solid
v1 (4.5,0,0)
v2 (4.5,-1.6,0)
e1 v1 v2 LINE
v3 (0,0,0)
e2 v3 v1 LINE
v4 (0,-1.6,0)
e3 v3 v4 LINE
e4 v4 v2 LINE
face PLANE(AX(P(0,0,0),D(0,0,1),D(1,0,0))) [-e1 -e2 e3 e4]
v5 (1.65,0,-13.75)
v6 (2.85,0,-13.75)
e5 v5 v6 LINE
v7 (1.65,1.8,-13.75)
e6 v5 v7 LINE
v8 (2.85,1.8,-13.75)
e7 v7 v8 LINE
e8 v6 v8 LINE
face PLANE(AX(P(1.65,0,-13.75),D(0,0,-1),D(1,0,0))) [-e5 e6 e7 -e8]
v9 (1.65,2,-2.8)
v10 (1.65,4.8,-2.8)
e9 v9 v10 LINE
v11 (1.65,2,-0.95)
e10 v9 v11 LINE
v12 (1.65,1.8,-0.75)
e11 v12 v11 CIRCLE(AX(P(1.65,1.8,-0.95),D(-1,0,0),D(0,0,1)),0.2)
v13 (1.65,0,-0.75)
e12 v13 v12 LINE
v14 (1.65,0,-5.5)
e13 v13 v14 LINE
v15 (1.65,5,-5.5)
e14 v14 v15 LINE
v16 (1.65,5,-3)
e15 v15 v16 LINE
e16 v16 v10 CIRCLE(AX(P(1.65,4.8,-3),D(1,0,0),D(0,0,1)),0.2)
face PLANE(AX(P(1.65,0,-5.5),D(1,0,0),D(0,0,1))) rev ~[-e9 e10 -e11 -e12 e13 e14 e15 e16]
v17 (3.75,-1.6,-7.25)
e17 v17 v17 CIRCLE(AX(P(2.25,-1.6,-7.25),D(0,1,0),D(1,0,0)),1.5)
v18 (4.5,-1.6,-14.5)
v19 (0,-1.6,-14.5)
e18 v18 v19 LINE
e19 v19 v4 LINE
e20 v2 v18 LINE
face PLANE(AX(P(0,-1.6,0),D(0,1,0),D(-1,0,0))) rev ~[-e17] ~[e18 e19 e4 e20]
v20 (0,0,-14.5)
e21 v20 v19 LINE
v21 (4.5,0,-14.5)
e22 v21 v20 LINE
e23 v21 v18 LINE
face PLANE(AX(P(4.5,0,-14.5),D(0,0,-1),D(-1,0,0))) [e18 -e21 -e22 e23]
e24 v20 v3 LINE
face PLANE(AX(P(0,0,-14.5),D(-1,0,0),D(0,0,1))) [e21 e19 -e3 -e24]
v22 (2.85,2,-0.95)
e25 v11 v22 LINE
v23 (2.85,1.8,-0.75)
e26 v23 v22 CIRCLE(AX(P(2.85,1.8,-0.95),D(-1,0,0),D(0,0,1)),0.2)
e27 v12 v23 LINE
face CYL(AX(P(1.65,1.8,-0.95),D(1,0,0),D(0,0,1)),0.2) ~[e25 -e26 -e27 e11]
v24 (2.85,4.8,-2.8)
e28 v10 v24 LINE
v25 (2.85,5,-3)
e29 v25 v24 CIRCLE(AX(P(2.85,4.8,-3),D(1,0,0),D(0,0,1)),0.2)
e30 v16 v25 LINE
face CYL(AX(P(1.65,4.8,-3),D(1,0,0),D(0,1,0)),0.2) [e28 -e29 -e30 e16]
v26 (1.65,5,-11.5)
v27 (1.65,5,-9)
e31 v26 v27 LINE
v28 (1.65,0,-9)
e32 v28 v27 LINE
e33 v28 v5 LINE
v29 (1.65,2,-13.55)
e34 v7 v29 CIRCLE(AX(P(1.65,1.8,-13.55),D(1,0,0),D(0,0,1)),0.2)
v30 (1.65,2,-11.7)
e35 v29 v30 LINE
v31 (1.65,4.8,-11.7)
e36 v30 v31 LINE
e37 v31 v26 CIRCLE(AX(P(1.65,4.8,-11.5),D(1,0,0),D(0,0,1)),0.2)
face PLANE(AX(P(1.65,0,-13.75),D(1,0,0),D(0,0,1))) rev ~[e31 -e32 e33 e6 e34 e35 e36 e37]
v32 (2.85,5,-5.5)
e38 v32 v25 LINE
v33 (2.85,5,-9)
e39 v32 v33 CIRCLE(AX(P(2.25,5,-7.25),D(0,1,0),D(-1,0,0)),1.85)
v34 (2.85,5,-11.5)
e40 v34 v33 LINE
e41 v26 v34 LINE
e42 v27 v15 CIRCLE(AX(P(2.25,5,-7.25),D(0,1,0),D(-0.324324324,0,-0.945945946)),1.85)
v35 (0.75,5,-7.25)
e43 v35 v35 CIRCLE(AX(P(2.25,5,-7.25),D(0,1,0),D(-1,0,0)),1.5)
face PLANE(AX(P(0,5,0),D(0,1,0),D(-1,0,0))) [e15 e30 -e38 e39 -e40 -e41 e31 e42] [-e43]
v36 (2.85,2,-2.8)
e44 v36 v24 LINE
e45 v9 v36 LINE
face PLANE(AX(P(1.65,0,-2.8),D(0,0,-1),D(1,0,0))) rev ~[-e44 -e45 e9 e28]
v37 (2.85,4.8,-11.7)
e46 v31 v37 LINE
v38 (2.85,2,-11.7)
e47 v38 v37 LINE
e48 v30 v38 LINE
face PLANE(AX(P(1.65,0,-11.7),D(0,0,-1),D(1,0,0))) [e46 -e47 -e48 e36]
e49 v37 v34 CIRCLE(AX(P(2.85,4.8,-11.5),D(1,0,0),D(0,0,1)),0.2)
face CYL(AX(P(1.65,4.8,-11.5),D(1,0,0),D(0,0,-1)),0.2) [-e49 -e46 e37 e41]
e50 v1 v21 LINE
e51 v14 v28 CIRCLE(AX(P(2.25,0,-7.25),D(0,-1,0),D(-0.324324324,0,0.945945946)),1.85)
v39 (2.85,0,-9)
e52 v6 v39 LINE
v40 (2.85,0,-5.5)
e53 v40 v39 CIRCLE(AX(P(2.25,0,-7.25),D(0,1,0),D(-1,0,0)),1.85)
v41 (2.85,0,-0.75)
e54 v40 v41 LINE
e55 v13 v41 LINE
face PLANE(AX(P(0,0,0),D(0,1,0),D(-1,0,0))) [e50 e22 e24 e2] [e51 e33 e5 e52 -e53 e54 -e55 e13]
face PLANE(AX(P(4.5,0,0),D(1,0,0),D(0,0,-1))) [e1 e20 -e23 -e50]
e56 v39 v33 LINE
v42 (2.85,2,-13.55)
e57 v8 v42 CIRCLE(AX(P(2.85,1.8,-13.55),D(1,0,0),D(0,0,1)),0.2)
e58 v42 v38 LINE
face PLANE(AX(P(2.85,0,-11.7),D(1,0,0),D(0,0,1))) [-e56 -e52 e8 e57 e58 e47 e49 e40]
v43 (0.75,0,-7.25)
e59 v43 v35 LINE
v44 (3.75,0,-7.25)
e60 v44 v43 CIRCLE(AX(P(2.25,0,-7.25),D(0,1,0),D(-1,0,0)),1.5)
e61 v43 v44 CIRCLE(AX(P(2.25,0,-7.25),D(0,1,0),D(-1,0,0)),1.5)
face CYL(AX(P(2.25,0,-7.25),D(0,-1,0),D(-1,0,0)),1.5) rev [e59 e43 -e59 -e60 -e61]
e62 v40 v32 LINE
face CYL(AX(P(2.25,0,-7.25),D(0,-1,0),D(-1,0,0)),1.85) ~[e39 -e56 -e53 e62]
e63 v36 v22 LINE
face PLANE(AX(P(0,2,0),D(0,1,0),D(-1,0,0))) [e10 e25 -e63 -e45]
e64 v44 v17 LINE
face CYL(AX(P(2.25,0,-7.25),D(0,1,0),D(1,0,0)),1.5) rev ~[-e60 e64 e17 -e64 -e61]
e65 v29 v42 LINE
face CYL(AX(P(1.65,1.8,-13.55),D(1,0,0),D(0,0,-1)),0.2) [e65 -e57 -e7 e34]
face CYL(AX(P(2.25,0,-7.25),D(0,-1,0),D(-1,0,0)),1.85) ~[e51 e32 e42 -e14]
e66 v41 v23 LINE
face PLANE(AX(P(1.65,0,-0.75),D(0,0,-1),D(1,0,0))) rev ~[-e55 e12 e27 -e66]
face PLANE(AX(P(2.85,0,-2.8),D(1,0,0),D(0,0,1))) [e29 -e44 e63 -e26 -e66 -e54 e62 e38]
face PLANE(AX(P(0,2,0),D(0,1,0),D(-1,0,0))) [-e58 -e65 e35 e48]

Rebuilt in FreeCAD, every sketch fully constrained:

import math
import FreeCAD as App
import Part
import Sketcher
Q = App.Units.Quantity


def edges_at(feature, points):
    """Names of the edges that pass closest to the given points."""
    edges = feature.Shape.Edges
    near = lambda p: min(range(len(edges)), key=lambda i: edges[i].distToShape(Part.Vertex(*p))[0])
    return sorted({f"Edge{near(p) + 1}" for p in points})


def add_polygon(sketch, points):
    """Adds a closed chain of lines whose ends are joined by coincident constraints."""
    first, n = sketch.GeometryCount, len(points)
    for a, b in zip(points, points[1:] + points[:1]):
        sketch.addGeometry(Part.LineSegment(App.Vector(*a, 0), App.Vector(*b, 0)), False)
    for i in range(n):
        sketch.addConstraint(Sketcher.Constraint("Coincident", first + i, 2, first + (i + 1) % n, 1))

doc = App.newDocument("Part")
body = doc.addObject("PartDesign::Body", "Body")

# Sketch on XZ plane
sketch1 = doc.addObject("Sketcher::SketchObject", "Sketch")
body.addObject(sketch1)
sketch1.AttachmentSupport = (doc.XZ_Plane, [""])
sketch1.MapMode = "FlatFace"
add_polygon(sketch1, [(0, -14.5), (0, 0), (4.5, 0), (4.5, -14.5)])  # lines 0-3
sketch1.addConstraint([
    Sketcher.Constraint("Vertical", 0),
    Sketcher.Constraint("Horizontal", 1),
    Sketcher.Constraint("Vertical", 2),
    Sketcher.Constraint("Horizontal", 3),
    Sketcher.Constraint("Coincident", 0, 2, -1, 1),
    Sketcher.Constraint("DistanceX", 1, 1, 1, 2, Q("4.5 mm")),
    Sketcher.Constraint("DistanceY", 0, 1, 0, 2, Q("14.5 mm")),
])
pad1 = doc.addObject("PartDesign::Pad", "Pad")
body.addObject(pad1)
pad1.Profile = sketch1
pad1.Length = 1.6

# Sketch on XZ plane
sketch2 = doc.addObject("Sketcher::SketchObject", "Sketch001")
body.addObject(sketch2)
sketch2.AttachmentSupport = (doc.XZ_Plane, [""])
sketch2.MapMode = "FlatFace"
add_polygon(sketch2, [(2.9, -13.8), (1.6, -13.8), (1.6, -11.7), (2.9, -11.7)])  # lines 0-3
add_polygon(sketch2, [(2.9, -0.8), (2.9, -2.8), (1.6, -2.8), (1.6, -0.8)])  # lines 4-7
sketch2.addConstraint([
    Sketcher.Constraint("Horizontal", 0),
    Sketcher.Constraint("Vertical", 1),
    Sketcher.Constraint("Horizontal", 2),
    Sketcher.Constraint("Vertical", 3),
    Sketcher.Constraint("Vertical", 4),
    Sketcher.Constraint("Horizontal", 5),
    Sketcher.Constraint("Vertical", 6),
    Sketcher.Constraint("Horizontal", 7),
    Sketcher.Constraint("Vertical", 3, 2, 4, 2),
    Sketcher.Constraint("Vertical", 1, 2, 5, 2),
    Sketcher.Constraint("Equal", 3, 4),
    Sketcher.Constraint("DistanceX", 0, 2, 0, 1, Q("1.2 mm")),
    Sketcher.Constraint("DistanceY", 0, 2, 6, 2, Q("13 mm")),
    Sketcher.Constraint("DistanceY", 1, 1, 1, 2, Q("2.05 mm")),
    Sketcher.Constraint("DistanceY", 1, 2, -1, 1, Q("11.7 mm")),
    Sketcher.Constraint("DistanceX", -1, 1, 0, 2, Q("1.65 mm")),
])
pad2 = doc.addObject("PartDesign::Pad", "Pad001")
body.addObject(pad2)
pad2.Profile = sketch2
pad2.Length = 2
pad2.Reversed = True

# Sketch on XZ plane
sketch3 = doc.addObject("Sketcher::SketchObject", "Sketch002")
body.addObject(sketch3)
sketch3.AttachmentSupport = (doc.XZ_Plane, [""])
sketch3.MapMode = "FlatFace"
sketch3.addGeometry([
    Part.LineSegment(App.Vector(2.9, -11.7, 0), App.Vector(1.6, -11.7, 0)),  # 0
    Part.LineSegment(App.Vector(1.6, -11.7, 0), App.Vector(1.6, -9, 0)),  # 1
    Part.ArcOfCircle(Part.Circle(App.Vector(2.2, -7.2, 0), App.Vector(0, 0, 1), 1.9), math.radians(109), math.radians(251)),  # 2
    Part.LineSegment(App.Vector(1.6, -5.5, 0), App.Vector(1.6, -2.8, 0)),  # 3
    Part.LineSegment(App.Vector(1.6, -2.8, 0), App.Vector(2.9, -2.8, 0)),  # 4
    Part.LineSegment(App.Vector(2.9, -2.8, 0), App.Vector(2.9, -5.5, 0)),  # 5
    Part.ArcOfCircle(Part.Circle(App.Vector(2.2, -7.2, 0), App.Vector(0, 0, 1), 1.9), math.radians(-71), math.radians(71)),  # 6
    Part.LineSegment(App.Vector(2.9, -9, 0), App.Vector(2.9, -11.7, 0)),  # 7
    Part.Circle(App.Vector(2.2, -7.2, 0), App.Vector(0, 0, 1), 1.5),  # 8
], False)
sketch3.addConstraint([
    Sketcher.Constraint("Coincident", 0, 2, 1, 1),
    Sketcher.Constraint("Coincident", 1, 2, 2, 2),
    Sketcher.Constraint("Coincident", 2, 1, 3, 1),
    Sketcher.Constraint("Coincident", 3, 2, 4, 1),
    Sketcher.Constraint("Coincident", 4, 2, 5, 1),
    Sketcher.Constraint("Coincident", 5, 2, 6, 2),
    Sketcher.Constraint("Coincident", 6, 1, 7, 1),
    Sketcher.Constraint("Coincident", 7, 2, 0, 1),
    Sketcher.Constraint("Horizontal", 0),
    Sketcher.Constraint("Vertical", 1),
    Sketcher.Constraint("Vertical", 3),
    Sketcher.Constraint("Horizontal", 4),
    Sketcher.Constraint("Vertical", 5),
    Sketcher.Constraint("Vertical", 7),
    Sketcher.Constraint("Coincident", 6, 3, 2, 3),
    Sketcher.Constraint("Coincident", 8, 3, 2, 3),
    Sketcher.Constraint("Equal", 2, 6),
    Sketcher.Constraint("Horizontal", 2, 1, 5, 2),
    Sketcher.Constraint("Horizontal", 1, 2, 6, 1),
    Sketcher.Constraint("Vertical", 1, 2, 2, 1),
    Sketcher.Constraint("Equal", 1, 3),
    Sketcher.Constraint("Diameter", 8, Q("3 mm")),
    Sketcher.Constraint("Radius", 2, Q("1.85 mm")),
    Sketcher.Constraint("DistanceY", 2, 3, -1, 1, Q("7.25 mm")),
    Sketcher.Constraint("DistanceX", 0, 2, 0, 1, Q("1.2 mm")),
    Sketcher.Constraint("DistanceY", 1, 1, 1, 2, Q("2.7 mm")),
    Sketcher.Constraint("DistanceX", -1, 1, 2, 3, Q("2.25 mm")),
])
pad3 = doc.addObject("PartDesign::Pad", "Pad002")
body.addObject(pad3)
pad3.Profile = sketch3
pad3.Length = 5
pad3.Reversed = True
doc.recompute()

fillet = doc.addObject("PartDesign::Fillet", "Fillet")
body.addObject(fillet)
fillet.Base = (pad3, edges_at(pad3, [
    (2.25, 5, -2.8),
    (2.25, 5, -11.7),
    (2.25, 2, -0.75),
    (2.25, 2, -13.75),
]))
fillet.Radius = 0.2

# Sketch on XZ plane
sketch4 = doc.addObject("Sketcher::SketchObject", "Sketch003")
body.addObject(sketch4)
sketch4.AttachmentSupport = (doc.XZ_Plane, [""])
sketch4.MapMode = "FlatFace"
sketch4.addGeometry(Part.Circle(App.Vector(2.2, -7.2, 0), App.Vector(0, 0, 1), 1.5), False)
sketch4.addConstraint([
    Sketcher.Constraint("Diameter", 0, Q("3 mm")),
    Sketcher.Constraint("DistanceX", -1, 1, 0, 3, Q("2.25 mm")),
    Sketcher.Constraint("DistanceY", 0, 3, -1, 1, Q("7.25 mm")),
])
pocket1 = doc.addObject("PartDesign::Pocket", "Pocket")
body.addObject(pocket1)
pocket1.Profile = sketch4
pocket1.Length = 10
pocket1.Reversed = True

doc.recompute()
